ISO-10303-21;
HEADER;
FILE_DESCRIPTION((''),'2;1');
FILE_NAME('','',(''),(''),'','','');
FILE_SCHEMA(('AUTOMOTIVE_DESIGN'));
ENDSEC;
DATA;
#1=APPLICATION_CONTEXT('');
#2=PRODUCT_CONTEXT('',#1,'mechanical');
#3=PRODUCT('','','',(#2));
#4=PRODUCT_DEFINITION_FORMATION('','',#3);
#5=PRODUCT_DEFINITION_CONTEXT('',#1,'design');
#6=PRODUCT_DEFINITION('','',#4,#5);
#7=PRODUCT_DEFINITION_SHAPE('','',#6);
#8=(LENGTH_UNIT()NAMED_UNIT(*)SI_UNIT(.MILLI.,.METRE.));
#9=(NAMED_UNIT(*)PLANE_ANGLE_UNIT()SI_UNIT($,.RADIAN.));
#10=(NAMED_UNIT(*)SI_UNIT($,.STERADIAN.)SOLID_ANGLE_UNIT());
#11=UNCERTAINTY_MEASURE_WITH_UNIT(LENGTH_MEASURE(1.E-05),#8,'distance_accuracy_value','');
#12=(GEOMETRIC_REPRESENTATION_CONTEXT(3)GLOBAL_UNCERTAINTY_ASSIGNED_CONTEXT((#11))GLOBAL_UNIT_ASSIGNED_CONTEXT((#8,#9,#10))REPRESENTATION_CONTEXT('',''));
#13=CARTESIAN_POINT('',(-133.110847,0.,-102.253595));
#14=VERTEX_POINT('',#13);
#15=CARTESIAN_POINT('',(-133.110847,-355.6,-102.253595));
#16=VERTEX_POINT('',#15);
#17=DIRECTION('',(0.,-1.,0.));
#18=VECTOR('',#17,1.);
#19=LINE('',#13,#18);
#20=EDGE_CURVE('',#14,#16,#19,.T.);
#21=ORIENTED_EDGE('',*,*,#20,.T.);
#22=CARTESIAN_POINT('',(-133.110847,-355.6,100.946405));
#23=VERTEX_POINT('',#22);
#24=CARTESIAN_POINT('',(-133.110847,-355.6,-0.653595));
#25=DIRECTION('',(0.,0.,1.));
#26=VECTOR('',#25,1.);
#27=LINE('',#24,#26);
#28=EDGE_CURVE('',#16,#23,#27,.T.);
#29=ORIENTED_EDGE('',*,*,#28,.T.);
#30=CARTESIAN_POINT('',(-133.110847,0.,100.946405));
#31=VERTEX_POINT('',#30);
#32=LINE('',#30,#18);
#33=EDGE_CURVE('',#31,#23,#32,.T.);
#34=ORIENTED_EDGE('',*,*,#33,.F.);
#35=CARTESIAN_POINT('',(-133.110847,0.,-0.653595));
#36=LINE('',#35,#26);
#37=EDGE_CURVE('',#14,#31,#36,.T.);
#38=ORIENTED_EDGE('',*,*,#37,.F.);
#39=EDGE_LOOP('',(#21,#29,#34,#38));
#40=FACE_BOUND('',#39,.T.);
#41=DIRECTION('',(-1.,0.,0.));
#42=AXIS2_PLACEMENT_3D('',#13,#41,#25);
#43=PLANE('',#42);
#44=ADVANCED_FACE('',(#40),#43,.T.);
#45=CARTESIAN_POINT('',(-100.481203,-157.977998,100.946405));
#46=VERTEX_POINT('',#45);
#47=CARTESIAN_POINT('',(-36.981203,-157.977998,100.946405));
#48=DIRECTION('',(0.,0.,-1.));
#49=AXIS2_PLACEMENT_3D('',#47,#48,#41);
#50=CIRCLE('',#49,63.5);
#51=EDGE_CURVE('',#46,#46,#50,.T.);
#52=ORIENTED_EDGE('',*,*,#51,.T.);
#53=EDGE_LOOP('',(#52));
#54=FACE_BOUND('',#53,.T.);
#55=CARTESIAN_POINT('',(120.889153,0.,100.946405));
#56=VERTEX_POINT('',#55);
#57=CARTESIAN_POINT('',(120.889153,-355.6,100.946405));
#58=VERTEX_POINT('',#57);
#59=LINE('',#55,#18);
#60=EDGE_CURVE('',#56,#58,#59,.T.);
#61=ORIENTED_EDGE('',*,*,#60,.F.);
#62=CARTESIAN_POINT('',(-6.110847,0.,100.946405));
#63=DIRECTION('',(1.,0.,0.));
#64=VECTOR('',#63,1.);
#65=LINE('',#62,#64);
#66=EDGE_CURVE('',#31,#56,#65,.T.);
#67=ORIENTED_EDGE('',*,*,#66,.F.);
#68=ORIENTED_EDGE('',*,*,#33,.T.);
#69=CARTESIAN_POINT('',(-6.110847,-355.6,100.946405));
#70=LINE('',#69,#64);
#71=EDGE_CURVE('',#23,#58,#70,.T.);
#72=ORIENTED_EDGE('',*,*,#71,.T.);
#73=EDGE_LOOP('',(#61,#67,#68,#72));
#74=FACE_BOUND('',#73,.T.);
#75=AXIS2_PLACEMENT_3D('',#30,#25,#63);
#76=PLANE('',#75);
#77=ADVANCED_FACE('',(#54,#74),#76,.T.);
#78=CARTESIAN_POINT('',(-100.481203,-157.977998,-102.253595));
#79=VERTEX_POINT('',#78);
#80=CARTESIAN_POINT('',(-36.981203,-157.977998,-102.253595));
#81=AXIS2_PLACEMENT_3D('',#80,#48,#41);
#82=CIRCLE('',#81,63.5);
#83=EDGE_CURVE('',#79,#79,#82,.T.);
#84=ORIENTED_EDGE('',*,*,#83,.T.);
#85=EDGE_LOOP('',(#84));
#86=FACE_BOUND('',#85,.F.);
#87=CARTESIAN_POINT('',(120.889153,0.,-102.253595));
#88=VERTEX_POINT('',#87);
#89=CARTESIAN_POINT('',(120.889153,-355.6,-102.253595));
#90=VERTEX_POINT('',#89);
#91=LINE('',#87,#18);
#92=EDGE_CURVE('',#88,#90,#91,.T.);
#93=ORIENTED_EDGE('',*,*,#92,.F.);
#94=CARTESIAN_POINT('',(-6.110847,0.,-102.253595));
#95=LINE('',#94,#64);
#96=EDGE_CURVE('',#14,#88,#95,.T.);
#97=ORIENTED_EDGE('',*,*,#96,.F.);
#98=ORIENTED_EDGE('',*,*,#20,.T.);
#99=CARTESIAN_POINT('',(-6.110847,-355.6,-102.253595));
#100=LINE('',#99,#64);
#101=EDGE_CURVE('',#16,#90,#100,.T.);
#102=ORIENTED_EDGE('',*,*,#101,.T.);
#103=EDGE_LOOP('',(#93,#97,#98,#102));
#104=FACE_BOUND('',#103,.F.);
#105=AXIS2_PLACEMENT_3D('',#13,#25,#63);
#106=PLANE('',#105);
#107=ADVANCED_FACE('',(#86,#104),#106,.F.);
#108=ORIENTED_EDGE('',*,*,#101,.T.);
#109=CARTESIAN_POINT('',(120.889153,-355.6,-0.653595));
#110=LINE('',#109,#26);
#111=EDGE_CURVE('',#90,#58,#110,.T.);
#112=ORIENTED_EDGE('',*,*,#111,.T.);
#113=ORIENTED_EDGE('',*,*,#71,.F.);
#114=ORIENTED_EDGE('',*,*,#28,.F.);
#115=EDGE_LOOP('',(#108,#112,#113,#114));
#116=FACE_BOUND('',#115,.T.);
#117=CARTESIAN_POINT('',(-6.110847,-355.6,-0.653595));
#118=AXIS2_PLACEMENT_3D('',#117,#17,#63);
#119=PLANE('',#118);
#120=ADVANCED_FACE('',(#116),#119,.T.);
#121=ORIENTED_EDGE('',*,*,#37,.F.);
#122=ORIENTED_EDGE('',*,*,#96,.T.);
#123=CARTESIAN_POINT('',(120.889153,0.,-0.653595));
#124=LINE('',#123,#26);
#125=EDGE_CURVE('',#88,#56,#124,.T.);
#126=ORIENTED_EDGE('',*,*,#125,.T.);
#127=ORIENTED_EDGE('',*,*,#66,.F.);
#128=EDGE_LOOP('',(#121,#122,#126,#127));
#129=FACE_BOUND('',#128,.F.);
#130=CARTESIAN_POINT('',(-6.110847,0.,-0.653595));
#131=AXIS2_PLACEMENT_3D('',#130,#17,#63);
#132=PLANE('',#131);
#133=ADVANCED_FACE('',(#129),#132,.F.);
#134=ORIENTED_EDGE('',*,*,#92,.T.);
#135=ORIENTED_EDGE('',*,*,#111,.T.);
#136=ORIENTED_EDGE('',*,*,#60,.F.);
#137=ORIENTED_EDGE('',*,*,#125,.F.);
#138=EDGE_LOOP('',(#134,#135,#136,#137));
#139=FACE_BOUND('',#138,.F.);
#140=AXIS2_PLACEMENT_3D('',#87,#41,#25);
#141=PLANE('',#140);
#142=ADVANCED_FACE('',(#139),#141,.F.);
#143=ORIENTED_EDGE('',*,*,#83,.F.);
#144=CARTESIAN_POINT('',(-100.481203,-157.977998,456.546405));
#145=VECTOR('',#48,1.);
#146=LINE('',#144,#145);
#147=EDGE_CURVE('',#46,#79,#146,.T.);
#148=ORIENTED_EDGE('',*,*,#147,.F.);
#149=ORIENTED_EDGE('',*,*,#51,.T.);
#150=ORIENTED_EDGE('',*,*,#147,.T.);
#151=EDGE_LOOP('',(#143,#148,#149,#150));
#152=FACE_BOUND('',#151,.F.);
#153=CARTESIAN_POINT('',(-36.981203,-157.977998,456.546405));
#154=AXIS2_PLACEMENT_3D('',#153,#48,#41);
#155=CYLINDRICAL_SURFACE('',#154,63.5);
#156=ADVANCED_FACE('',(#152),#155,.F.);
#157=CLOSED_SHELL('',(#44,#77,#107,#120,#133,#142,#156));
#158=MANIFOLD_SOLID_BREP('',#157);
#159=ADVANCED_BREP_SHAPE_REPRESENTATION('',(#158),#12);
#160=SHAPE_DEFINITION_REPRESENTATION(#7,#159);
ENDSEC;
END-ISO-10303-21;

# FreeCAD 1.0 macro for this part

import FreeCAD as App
import Part
import Sketcher
Q = App.Units.Quantity


def add_polygon(sketch, points):
    """Adds a closed chain of lines whose ends are joined by coincident constraints."""
    first, n = sketch.GeometryCount, len(points)
    for a, b in zip(points, points[1:] + points[:1]):
        sketch.addGeometry(Part.LineSegment(App.Vector(*a, 0), App.Vector(*b, 0)), False)
    for i in range(n):
        sketch.addConstraint(Sketcher.Constraint("Coincident", first + i, 2, first + (i + 1) % n, 1))

doc = App.newDocument("Part")
body = doc.addObject("PartDesign::Body", "Body")

# Sketch on XZ plane
sketch1 = doc.addObject("Sketcher::SketchObject", "Sketch")
body.addObject(sketch1)
sketch1.AttachmentSupport = (doc.XZ_Plane, [""])
sketch1.MapMode = "FlatFace"
add_polygon(sketch1, [(-133, 101), (-133, -102), (121, -102), (121, 101)])  # lines 0-3
sketch1.addConstraint([
    Sketcher.Constraint("Vertical", 0),
    Sketcher.Constraint("Horizontal", 1),
    Sketcher.Constraint("Vertical", 2),
    Sketcher.Constraint("Horizontal", 3),
    Sketcher.Constraint("DistanceX", 1, 1, 1, 2, Q("10 in")),
    Sketcher.Constraint("DistanceY", 0, 2, 0, 1, Q("8 in")),
    Sketcher.Constraint("DistanceX", 0, 2, -1, 1, 133.110847),
    Sketcher.Constraint("DistanceY", 0, 2, -1, 1, 102.253595),
])
pad1 = doc.addObject("PartDesign::Pad", "Pad")
body.addObject(pad1)
pad1.Profile = sketch1
pad1.Length = Q("14 in")

# Sketch on XY plane
sketch2 = doc.addObject("Sketcher::SketchObject", "Sketch001")
body.addObject(sketch2)
sketch2.AttachmentSupport = (doc.XY_Plane, [""])
sketch2.MapMode = "FlatFace"
sketch2.AttachmentOffset = App.Placement(App.Vector(0, 0, 100.946405), App.Rotation())
sketch2.addGeometry(Part.Circle(App.Vector(-37, -158, 0), App.Vector(0, 0, 1), 64), False)
sketch2.addConstraint([
    Sketcher.Constraint("Diameter", 0, Q("5 in")),
    Sketcher.Constraint("DistanceY", 0, 3, -1, 1, 157.977998),
    Sketcher.Constraint("DistanceX", 0, 3, -1, 1, 36.981203),
])
doc.recompute()
hole = doc.addObject("PartDesign::Hole", "Hole")
body.addObject(hole)
hole.Profile = sketch2
hole.ThreadType = "None"
hole.Diameter = Q("5 in")
hole.DepthType = "Dimension"
hole.Depth = Q("14 in")
hole.DrillPoint = "Flat"

doc.recompute()
